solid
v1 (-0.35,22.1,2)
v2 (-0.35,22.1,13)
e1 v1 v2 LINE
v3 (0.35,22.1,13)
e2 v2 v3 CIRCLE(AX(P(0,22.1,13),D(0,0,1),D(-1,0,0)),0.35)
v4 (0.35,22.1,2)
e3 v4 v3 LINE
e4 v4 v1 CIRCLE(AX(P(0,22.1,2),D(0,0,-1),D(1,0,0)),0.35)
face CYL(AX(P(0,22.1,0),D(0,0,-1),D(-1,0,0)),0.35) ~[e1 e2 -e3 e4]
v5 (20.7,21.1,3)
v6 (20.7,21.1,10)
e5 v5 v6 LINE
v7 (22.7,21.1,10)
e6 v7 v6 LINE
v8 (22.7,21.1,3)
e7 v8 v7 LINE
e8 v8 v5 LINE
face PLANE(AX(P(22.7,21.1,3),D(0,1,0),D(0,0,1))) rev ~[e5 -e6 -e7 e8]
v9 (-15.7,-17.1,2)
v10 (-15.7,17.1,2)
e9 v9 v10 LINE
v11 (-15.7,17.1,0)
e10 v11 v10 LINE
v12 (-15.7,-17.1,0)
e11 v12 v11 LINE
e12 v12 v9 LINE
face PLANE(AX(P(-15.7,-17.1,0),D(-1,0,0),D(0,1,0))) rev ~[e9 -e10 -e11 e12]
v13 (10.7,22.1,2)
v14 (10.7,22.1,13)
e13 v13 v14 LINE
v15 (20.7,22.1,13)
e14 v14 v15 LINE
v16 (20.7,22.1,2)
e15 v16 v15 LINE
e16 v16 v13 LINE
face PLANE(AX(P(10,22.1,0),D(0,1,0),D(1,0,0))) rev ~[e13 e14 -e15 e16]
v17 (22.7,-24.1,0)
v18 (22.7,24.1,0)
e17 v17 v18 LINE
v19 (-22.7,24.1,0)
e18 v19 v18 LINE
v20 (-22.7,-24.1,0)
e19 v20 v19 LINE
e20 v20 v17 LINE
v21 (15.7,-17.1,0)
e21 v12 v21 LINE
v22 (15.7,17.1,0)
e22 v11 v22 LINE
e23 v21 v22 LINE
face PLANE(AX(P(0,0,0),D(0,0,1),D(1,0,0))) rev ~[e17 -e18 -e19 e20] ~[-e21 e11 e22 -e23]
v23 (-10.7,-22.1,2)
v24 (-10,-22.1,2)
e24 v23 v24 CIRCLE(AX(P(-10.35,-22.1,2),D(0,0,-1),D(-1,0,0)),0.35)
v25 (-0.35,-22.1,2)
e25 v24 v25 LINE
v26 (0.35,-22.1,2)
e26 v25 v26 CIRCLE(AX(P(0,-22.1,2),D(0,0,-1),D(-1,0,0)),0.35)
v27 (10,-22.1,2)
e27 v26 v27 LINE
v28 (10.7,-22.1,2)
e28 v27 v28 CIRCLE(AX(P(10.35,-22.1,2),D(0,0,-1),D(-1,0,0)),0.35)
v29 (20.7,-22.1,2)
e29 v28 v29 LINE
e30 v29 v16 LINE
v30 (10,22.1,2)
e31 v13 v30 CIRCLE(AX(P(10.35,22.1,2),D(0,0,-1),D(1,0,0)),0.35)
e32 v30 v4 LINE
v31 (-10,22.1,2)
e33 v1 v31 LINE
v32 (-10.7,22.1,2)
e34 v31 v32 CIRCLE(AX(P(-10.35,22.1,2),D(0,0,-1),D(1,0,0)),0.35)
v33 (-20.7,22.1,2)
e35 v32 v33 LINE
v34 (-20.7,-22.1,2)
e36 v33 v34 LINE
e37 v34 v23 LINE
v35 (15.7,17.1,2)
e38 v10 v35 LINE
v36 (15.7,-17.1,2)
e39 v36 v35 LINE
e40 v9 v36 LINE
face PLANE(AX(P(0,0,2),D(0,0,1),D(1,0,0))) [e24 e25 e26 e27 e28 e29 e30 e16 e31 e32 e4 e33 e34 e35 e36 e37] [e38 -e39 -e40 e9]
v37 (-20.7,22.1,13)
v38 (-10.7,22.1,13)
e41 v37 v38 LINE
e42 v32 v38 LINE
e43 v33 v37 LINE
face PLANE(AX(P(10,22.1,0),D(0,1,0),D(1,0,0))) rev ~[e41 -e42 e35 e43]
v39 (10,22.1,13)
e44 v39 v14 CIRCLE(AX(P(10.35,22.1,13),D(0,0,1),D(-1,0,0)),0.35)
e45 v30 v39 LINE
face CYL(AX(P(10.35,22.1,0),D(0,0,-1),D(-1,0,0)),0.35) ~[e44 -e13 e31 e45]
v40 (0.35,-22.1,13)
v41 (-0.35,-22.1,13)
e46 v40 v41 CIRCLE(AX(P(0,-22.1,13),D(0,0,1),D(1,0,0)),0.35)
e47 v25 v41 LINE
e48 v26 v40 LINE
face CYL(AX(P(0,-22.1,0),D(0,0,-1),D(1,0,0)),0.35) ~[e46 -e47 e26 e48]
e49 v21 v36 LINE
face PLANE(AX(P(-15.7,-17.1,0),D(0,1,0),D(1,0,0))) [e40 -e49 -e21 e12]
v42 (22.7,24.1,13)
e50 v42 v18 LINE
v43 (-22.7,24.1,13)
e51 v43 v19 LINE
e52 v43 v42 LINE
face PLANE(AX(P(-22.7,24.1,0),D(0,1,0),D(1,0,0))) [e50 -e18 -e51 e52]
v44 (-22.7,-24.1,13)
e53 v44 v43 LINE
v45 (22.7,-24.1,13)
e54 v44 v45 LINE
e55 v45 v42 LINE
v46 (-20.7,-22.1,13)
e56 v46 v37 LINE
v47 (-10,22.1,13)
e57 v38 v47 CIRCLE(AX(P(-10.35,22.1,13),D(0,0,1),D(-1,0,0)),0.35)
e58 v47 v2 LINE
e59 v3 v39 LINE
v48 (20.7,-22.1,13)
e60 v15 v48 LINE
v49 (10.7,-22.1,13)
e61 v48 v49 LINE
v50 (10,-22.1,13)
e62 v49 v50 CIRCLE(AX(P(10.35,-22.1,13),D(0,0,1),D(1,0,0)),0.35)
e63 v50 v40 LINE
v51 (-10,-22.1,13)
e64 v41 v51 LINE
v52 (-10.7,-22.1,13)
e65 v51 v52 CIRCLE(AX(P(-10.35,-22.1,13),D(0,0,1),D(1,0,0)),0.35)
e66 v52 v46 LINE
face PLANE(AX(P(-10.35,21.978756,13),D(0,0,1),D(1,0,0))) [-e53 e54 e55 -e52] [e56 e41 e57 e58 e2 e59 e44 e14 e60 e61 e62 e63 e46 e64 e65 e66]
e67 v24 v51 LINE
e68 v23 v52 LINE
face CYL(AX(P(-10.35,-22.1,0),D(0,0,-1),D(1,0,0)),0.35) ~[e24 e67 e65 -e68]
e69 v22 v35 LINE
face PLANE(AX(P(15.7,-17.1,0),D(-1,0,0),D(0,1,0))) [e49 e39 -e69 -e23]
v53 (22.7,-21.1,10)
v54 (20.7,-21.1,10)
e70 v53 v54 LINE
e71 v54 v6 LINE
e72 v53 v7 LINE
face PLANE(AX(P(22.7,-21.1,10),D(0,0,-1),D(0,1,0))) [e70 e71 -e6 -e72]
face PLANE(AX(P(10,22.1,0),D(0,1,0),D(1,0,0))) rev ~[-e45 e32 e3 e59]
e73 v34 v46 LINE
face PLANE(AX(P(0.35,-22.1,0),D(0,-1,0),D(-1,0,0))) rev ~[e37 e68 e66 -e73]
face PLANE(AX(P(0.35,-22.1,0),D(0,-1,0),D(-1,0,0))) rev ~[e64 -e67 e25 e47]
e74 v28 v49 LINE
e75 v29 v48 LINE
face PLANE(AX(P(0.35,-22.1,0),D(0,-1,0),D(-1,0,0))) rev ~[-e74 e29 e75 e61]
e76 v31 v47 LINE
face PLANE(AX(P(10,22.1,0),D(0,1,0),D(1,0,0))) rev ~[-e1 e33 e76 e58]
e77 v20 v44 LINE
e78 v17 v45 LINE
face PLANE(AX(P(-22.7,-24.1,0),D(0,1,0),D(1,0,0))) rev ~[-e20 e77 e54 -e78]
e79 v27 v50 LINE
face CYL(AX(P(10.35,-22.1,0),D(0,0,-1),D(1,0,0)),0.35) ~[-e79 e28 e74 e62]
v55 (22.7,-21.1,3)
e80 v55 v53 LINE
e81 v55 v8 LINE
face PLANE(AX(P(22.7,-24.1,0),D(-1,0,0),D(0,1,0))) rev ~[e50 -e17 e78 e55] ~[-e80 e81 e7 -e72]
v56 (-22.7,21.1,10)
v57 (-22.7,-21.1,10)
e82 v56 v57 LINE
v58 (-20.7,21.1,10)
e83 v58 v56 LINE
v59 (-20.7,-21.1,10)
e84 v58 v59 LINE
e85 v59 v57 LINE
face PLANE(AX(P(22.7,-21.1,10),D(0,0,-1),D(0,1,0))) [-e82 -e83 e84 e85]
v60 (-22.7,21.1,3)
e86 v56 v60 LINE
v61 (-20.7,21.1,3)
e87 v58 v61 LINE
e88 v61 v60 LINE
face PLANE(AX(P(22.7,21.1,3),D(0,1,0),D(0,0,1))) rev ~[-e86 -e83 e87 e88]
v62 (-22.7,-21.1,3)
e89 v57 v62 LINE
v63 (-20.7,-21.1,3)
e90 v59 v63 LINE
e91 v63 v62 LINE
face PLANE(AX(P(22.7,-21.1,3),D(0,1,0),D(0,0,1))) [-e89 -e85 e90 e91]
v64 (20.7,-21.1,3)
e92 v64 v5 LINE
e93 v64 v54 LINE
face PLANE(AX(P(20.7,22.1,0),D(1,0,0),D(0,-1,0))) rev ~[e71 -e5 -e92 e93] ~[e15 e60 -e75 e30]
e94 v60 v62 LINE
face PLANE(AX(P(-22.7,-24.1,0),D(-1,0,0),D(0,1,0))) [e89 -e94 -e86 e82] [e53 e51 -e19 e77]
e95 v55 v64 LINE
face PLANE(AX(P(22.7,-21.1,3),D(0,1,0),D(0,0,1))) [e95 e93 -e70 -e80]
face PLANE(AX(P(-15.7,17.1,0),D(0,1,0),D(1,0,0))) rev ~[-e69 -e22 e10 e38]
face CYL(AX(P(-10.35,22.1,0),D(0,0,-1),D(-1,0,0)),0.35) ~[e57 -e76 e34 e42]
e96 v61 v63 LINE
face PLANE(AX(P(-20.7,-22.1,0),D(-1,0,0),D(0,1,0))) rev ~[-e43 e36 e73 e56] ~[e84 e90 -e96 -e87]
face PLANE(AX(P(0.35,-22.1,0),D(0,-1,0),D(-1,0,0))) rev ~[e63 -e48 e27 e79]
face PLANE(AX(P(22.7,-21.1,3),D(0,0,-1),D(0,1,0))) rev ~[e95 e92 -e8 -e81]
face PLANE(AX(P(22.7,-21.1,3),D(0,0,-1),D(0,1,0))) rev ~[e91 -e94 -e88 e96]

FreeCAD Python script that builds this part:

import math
import FreeCAD as App
import Part
import Sketcher

V = App.Vector


def add_polygon(sketch, points):
    """Adds a closed chain of lines whose ends are joined by coincident constraints."""
    first, n = sketch.GeometryCount, len(points)
    for a, b in zip(points, points[1:] + points[:1]):
        sketch.addGeometry(Part.LineSegment(App.Vector(*a, 0), App.Vector(*b, 0)), False)
    for i in range(n):
        sketch.addConstraint(Sketcher.Constraint("Coincident", first + i, 2, first + (i + 1) % n, 1))

doc = App.newDocument("Part")
body = doc.addObject("PartDesign::Body", "Body")

# Sketch on XY plane
sketch1 = body.newObject("Sketcher::SketchObject", "Sketch")
sketch1.AttachmentSupport = (doc.getObject("XY_Plane"), [""])
sketch1.MapMode = "FlatFace"
add_polygon(sketch1, [(-22.7, 24.1), (-22.7, -24.1), (22.7, -24.1), (22.7, 24.1)])  # lines 0-3
sketch1.addGeometry(Part.LineSegment(V(-10, -22.1, 0), V(-10.7, -22.1, 0)), False)  # 4
sketch1.addGeometry(Part.ArcOfCircle(Part.Circle(V(-10.35, -22.1, 0), V(0, 0, 1), 0.35), math.radians(0), math.radians(180)), False)  # 5
sketch1.addGeometry(Part.LineSegment(V(0.35, -22.1, 0), V(-0.35, -22.1, 0)), False)  # 6
sketch1.addGeometry(Part.ArcOfCircle(Part.Circle(V(0, -22.1, 0), V(0, 0, 1), 0.35), math.radians(0), math.radians(180)), False)  # 7
sketch1.addGeometry(Part.LineSegment(V(10.7, -22.1, 0), V(10, -22.1, 0)), False)  # 8
sketch1.addGeometry(Part.ArcOfCircle(Part.Circle(V(10.35, -22.1, 0), V(0, 0, 1), 0.35), math.radians(0), math.radians(180)), False)  # 9
sketch1.addGeometry(Part.LineSegment(V(-10.7, 22.1, 0), V(-10, 22.1, 0)), False)  # 10
sketch1.addGeometry(Part.ArcOfCircle(Part.Circle(V(-10.35, 22.1, 0), V(0, 0, 1), 0.35), math.radians(180), math.radians(360)), False)  # 11
add_polygon(sketch1, [(15.7, -17.1), (-15.7, -17.1), (-15.7, 17.1), (15.7, 17.1)])  # lines 12-15
sketch1.addGeometry(Part.LineSegment(V(-0.35, 22.1, 0), V(0.35, 22.1, 0)), False)  # 16
sketch1.addGeometry(Part.ArcOfCircle(Part.Circle(V(0, 22.1, 0), V(0, 0, 1), 0.35), math.radians(180), math.radians(360)), False)  # 17
sketch1.addGeometry(Part.LineSegment(V(10, 22.1, 0), V(10.7, 22.1, 0)), False)  # 18
sketch1.addGeometry(Part.ArcOfCircle(Part.Circle(V(10.35, 22.1, 0), V(0, 0, 1), 0.35), math.radians(180), math.radians(360)), False)  # 19
sketch1.addConstraint(Sketcher.Constraint("Coincident", 4, 1, 5, 1))
sketch1.addConstraint(Sketcher.Constraint("Coincident", 5, 2, 4, 2))
sketch1.addConstraint(Sketcher.Constraint("Coincident", 6, 1, 7, 1))
sketch1.addConstraint(Sketcher.Constraint("Coincident", 7, 2, 6, 2))
sketch1.addConstraint(Sketcher.Constraint("Coincident", 8, 1, 9, 1))
sketch1.addConstraint(Sketcher.Constraint("Coincident", 9, 2, 8, 2))
sketch1.addConstraint(Sketcher.Constraint("Coincident", 10, 1, 11, 1))
sketch1.addConstraint(Sketcher.Constraint("Coincident", 11, 2, 10, 2))
sketch1.addConstraint(Sketcher.Constraint("Coincident", 16, 1, 17, 1))
sketch1.addConstraint(Sketcher.Constraint("Coincident", 17, 2, 16, 2))
sketch1.addConstraint(Sketcher.Constraint("Coincident", 18, 1, 19, 1))
sketch1.addConstraint(Sketcher.Constraint("Coincident", 19, 2, 18, 2))
sketch1.addConstraint(Sketcher.Constraint("Vertical", 0))
sketch1.addConstraint(Sketcher.Constraint("Horizontal", 1))
sketch1.addConstraint(Sketcher.Constraint("Vertical", 2))
sketch1.addConstraint(Sketcher.Constraint("Horizontal", 3))
sketch1.addConstraint(Sketcher.Constraint("Horizontal", 4))
sketch1.addConstraint(Sketcher.Constraint("Horizontal", 6))
sketch1.addConstraint(Sketcher.Constraint("Horizontal", 8))
sketch1.addConstraint(Sketcher.Constraint("Horizontal", 10))
sketch1.addConstraint(Sketcher.Constraint("Horizontal", 12))
sketch1.addConstraint(Sketcher.Constraint("Vertical", 13))
sketch1.addConstraint(Sketcher.Constraint("Horizontal", 14))
sketch1.addConstraint(Sketcher.Constraint("Vertical", 15))
sketch1.addConstraint(Sketcher.Constraint("Horizontal", 16))
sketch1.addConstraint(Sketcher.Constraint("Horizontal", 18))
sketch1.addConstraint(Sketcher.Constraint("Equal", 5, 7))
sketch1.addConstraint(Sketcher.Constraint("Equal", 7, 9))
sketch1.addConstraint(Sketcher.Constraint("Equal", 9, 11))
sketch1.addConstraint(Sketcher.Constraint("Equal", 11, 17))
sketch1.addConstraint(Sketcher.Constraint("Equal", 17, 19))
sketch1.addConstraint(Sketcher.Constraint("Symmetric", 9, 3, 11, 3, -1, 1))
sketch1.addConstraint(Sketcher.Constraint("Symmetric", 7, 3, 17, 3, -1, 1))
sketch1.addConstraint(Sketcher.Constraint("Symmetric", 5, 3, 19, 3, -1, 1))
sketch1.addConstraint(Sketcher.Constraint("Symmetric", 0, 2, 2, 2, -1, 1))
sketch1.addConstraint(Sketcher.Constraint("Symmetric", 12, 2, 14, 2, -1, 1))
sketch1.addConstraint(Sketcher.Constraint("Symmetric", 5, 3, 9, 3, -2))
sketch1.addConstraint(Sketcher.Constraint("Symmetric", 7, 2, 16, 1, -1))
sketch1.addConstraint(Sketcher.Constraint("Horizontal", 5, 3, 7, 3))
sketch1.addConstraint(Sketcher.Constraint("Horizontal", 9, 3, 4, 1))
sketch1.addConstraint(Sketcher.Constraint("Horizontal", 5, 2, 6, 1))
sketch1.addConstraint(Sketcher.Constraint("Horizontal", 7, 2, 8, 1))
sketch1.addConstraint(Sketcher.Constraint("Horizontal", 19, 3, 10, 1))
sketch1.addConstraint(Sketcher.Constraint("Horizontal", 17, 2, 18, 1))
sketch1.addConstraint(Sketcher.Constraint("Radius", 5, 0.35))
sketch1.addConstraint(Sketcher.Constraint("DistanceX", 1, 1, 1, 2, 45.4))
sketch1.addConstraint(Sketcher.Constraint("DistanceX", 12, 2, 12, 1, 31.4))
sketch1.addConstraint(Sketcher.Constraint("DistanceY", 0, 2, 0, 1, 48.2))
sketch1.addConstraint(Sketcher.Constraint("DistanceY", 13, 1, 13, 2, 34.2))
sketch1.addConstraint(Sketcher.Constraint("DistanceX", 4, 1, -1, 1, 10.0))
sketch1.addConstraint(Sketcher.Constraint("DistanceY", 0, 2, 5, 3, 2.0))
pad1 = body.newObject("PartDesign::Pad", "Pad")
pad1.Profile = sketch1
pad1.Length = 2

# Sketch on XY plane
sketch2 = body.newObject("Sketcher::SketchObject", "Sketch001")
sketch2.AttachmentSupport = (doc.getObject("XY_Plane"), [""])
sketch2.MapMode = "FlatFace"
add_polygon(sketch2, [(-23, 24), (-23, -24), (23, -24), (23, 24)])  # lines 0-3
add_polygon(sketch2, [(21, -22), (-21, -22), (-21, 22), (21, 22)])  # lines 4-7
sketch2.addConstraint(Sketcher.Constraint("Vertical", 0))
sketch2.addConstraint(Sketcher.Constraint("Horizontal", 1))
sketch2.addConstraint(Sketcher.Constraint("Vertical", 2))
sketch2.addConstraint(Sketcher.Constraint("Horizontal", 3))
sketch2.addConstraint(Sketcher.Constraint("Horizontal", 4))
sketch2.addConstraint(Sketcher.Constraint("Vertical", 5))
sketch2.addConstraint(Sketcher.Constraint("Horizontal", 6))
sketch2.addConstraint(Sketcher.Constraint("Vertical", 7))
sketch2.addConstraint(Sketcher.Constraint("Symmetric", 0, 2, 2, 2, -1, 1))
sketch2.addConstraint(Sketcher.Constraint("Symmetric", 4, 2, 6, 2, -1, 1))
sketch2.addConstraint(Sketcher.Constraint("DistanceX", 1, 1, 1, 2, 45.4))
sketch2.addConstraint(Sketcher.Constraint("DistanceX", 4, 2, 4, 1, 41.4))
sketch2.addConstraint(Sketcher.Constraint("DistanceY", 0, 2, 0, 1, 48.2))
sketch2.addConstraint(Sketcher.Constraint("DistanceY", 5, 1, 5, 2, 44.2))
pad2 = body.newObject("PartDesign::Pad", "Pad001")
pad2.Profile = sketch2
pad2.Length = 13

# Sketch on XY plane
sketch3 = body.newObject("Sketcher::SketchObject", "Sketch002")
sketch3.AttachmentSupport = (doc.getObject("XY_Plane"), [""])
sketch3.MapMode = "FlatFace"
sketch3.addGeometry(Part.LineSegment(V(-10, 22.1, 0), V(-10.7, 22.1, 0)), False)
sketch3.addGeometry(Part.ArcOfCircle(Part.Circle(V(-10.35, 22.1, 0), V(0, 0, 1), 0.35), math.radians(180), math.radians(360)), False)
sketch3.addGeometry(Part.LineSegment(V(0.35, 22.1, 0), V(-0.35, 22.1, 0)), False)
sketch3.addGeometry(Part.ArcOfCircle(Part.Circle(V(0, 22.1, 0), V(0, 0, 1), 0.35), math.radians(180), math.radians(360)), False)
sketch3.addGeometry(Part.LineSegment(V(10.7, 22.1, 0), V(10, 22.1, 0)), False)
sketch3.addGeometry(Part.ArcOfCircle(Part.Circle(V(10.35, 22.1, 0), V(0, 0, 1), 0.35), math.radians(180), math.radians(360)), False)
sketch3.addGeometry(Part.ArcOfCircle(Part.Circle(V(-10.35, -22.1, 0), V(0, 0, 1), 0.35), math.radians(0), math.radians(180)), False)
sketch3.addGeometry(Part.LineSegment(V(-10.7, -22.1, 0), V(-10, -22.1, 0)), False)
sketch3.addGeometry(Part.ArcOfCircle(Part.Circle(V(0, -22.1, 0), V(0, 0, 1), 0.35), math.radians(0), math.radians(180)), False)
sketch3.addGeometry(Part.LineSegment(V(-0.35, -22.1, 0), V(0.35, -22.1, 0)), False)
sketch3.addGeometry(Part.ArcOfCircle(Part.Circle(V(10.35, -22.1, 0), V(0, 0, 1), 0.35), math.radians(0), math.radians(180)), False)
sketch3.addGeometry(Part.LineSegment(V(10, -22.1, 0), V(10.7, -22.1, 0)), False)
sketch3.addConstraint(Sketcher.Constraint("Coincident", 0, 1, 1, 2))
sketch3.addConstraint(Sketcher.Constraint("Coincident", 1, 1, 0, 2))
sketch3.addConstraint(Sketcher.Constraint("Coincident", 2, 1, 3, 2))
sketch3.addConstraint(Sketcher.Constraint("Coincident", 3, 1, 2, 2))
sketch3.addConstraint(Sketcher.Constraint("Coincident", 4, 1, 5, 2))
sketch3.addConstraint(Sketcher.Constraint("Coincident", 5, 1, 4, 2))
sketch3.addConstraint(Sketcher.Constraint("Coincident", 6, 1, 7, 2))
sketch3.addConstraint(Sketcher.Constraint("Coincident", 7, 1, 6, 2))
sketch3.addConstraint(Sketcher.Constraint("Coincident", 8, 1, 9, 2))
sketch3.addConstraint(Sketcher.Constraint("Coincident", 9, 1, 8, 2))
sketch3.addConstraint(Sketcher.Constraint("Coincident", 10, 1, 11, 2))
sketch3.addConstraint(Sketcher.Constraint("Coincident", 11, 1, 10, 2))
sketch3.addConstraint(Sketcher.Constraint("Horizontal", 0))
sketch3.addConstraint(Sketcher.Constraint("Horizontal", 2))
sketch3.addConstraint(Sketcher.Constraint("Horizontal", 4))
sketch3.addConstraint(Sketcher.Constraint("Horizontal", 7))
sketch3.addConstraint(Sketcher.Constraint("Horizontal", 9))
sketch3.addConstraint(Sketcher.Constraint("Horizontal", 11))
sketch3.addConstraint(Sketcher.Constraint("Equal", 1, 3))
sketch3.addConstraint(Sketcher.Constraint("Equal", 3, 5))
sketch3.addConstraint(Sketcher.Constraint("Equal", 5, 6))
sketch3.addConstraint(Sketcher.Constraint("Equal", 6, 8))
sketch3.addConstraint(Sketcher.Constraint("Equal", 8, 10))
sketch3.addConstraint(Sketcher.Constraint("Symmetric", 5, 3, 6, 3, -1, 1))
sketch3.addConstraint(Sketcher.Constraint("Symmetric", 3, 3, 8, 3, -1, 1))
sketch3.addConstraint(Sketcher.Constraint("Symmetric", 1, 3, 10, 3, -1, 1))
sketch3.addConstraint(Sketcher.Constraint("Symmetric", 1, 3, 5, 3, -2))
sketch3.addConstraint(Sketcher.Constraint("Symmetric", 2, 1, 8, 1, -1))
sketch3.addConstraint(Sketcher.Constraint("Horizontal", 1, 3, 3, 3))
sketch3.addConstraint(Sketcher.Constraint("Horizontal", 5, 3, 0, 1))
sketch3.addConstraint(Sketcher.Constraint("Horizontal", 1, 1, 2, 1))
sketch3.addConstraint(Sketcher.Constraint("Horizontal", 3, 1, 4, 1))
sketch3.addConstraint(Sketcher.Constraint("Horizontal", 10, 3, 6, 1))
sketch3.addConstraint(Sketcher.Constraint("Horizontal", 9, 1, 10, 1))
sketch3.addConstraint(Sketcher.Constraint("Radius", 1, 0.35))
sketch3.addConstraint(Sketcher.Constraint("DistanceX", 0, 1, -1, 1, 10.0))
sketch3.addConstraint(Sketcher.Constraint("DistanceY", -1, 1, 1, 3, 22.1))
pad3 = body.newObject("PartDesign::Pad", "Pad002")
pad3.Profile = sketch3
pad3.Length = 13

# Sketch on YZ plane
sketch4 = body.newObject("Sketcher::SketchObject", "Sketch003")
sketch4.AttachmentSupport = (doc.getObject("YZ_Plane"), [""])
sketch4.MapMode = "FlatFace"
sketch4.AttachmentOffset = App.Placement(V(0, 0, 22.7), App.Rotation())
add_polygon(sketch4, [(-21, 10), (-21, 3), (21, 3), (21, 10)])  # lines 0-3
sketch4.addConstraint(Sketcher.Constraint("Vertical", 0))
sketch4.addConstraint(Sketcher.Constraint("Horizontal", 1))
sketch4.addConstraint(Sketcher.Constraint("Vertical", 2))
sketch4.addConstraint(Sketcher.Constraint("Horizontal", 3))
sketch4.addConstraint(Sketcher.Constraint("DistanceY", 0, 2, 0, 1, 7.0))
sketch4.addConstraint(Sketcher.Constraint("DistanceX", 1, 1, 1, 2, 42.2))
sketch4.addConstraint(Sketcher.Constraint("DistanceY", -1, 1, 0, 2, 3.0))
sketch4.addConstraint(Sketcher.Constraint("DistanceX", 0, 2, -1, 1, 21.1))
pocket1 = body.newObject("PartDesign::Pocket", "Pocket")
pocket1.Profile = sketch4
pocket1.Length = 80

doc.recompute()
